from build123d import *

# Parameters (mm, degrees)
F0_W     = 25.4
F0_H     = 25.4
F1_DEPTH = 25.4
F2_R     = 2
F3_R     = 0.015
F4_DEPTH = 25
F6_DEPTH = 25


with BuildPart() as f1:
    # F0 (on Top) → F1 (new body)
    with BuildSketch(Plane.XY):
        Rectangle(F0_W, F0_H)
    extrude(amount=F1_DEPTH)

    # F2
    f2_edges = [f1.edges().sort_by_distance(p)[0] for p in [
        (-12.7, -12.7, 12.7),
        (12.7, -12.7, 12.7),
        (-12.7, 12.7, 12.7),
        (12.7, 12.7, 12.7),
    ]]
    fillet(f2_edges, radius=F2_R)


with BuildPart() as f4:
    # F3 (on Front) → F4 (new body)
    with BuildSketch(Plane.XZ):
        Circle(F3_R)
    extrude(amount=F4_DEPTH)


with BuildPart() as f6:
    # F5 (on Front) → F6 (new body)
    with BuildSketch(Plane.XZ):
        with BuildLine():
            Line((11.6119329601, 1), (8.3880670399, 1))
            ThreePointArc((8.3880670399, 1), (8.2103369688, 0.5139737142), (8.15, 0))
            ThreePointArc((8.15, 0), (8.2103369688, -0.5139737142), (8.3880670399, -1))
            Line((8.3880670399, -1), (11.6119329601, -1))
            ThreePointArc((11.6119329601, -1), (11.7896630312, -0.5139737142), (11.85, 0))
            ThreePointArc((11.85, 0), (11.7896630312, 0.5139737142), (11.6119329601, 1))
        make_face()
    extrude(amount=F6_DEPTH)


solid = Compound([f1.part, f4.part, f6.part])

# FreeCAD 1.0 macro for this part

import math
import FreeCAD as App
import Part
import Sketcher
from FreeCAD import Vector
Q = App.Units.Quantity


def edges_at(feature, points):
    """Names of the edges that pass closest to the given points."""
    edges = feature.Shape.Edges
    near = lambda p: min(range(len(edges)), key=lambda i: edges[i].distToShape(Part.Vertex(*p))[0])
    return sorted({f"Edge{near(p) + 1}" for p in points})


def add_polygon(sketch, points):
    """Adds a closed chain of lines whose ends are joined by coincident constraints."""
    first, n = sketch.GeometryCount, len(points)
    for a, b in zip(points, points[1:] + points[:1]):
        sketch.addGeometry(Part.LineSegment(App.Vector(*a, 0), App.Vector(*b, 0)), False)
    for i in range(n):
        sketch.addConstraint(Sketcher.Constraint("Coincident", first + i, 2, first + (i + 1) % n, 1))

doc = App.newDocument("Part")
body = doc.addObject("PartDesign::Body", "Body")

# Sketch on XY plane
sketch1 = body.newObject("Sketcher::SketchObject", "Sketch")
sketch1.AttachmentSupport = (doc.getObject("XY_Plane"), [""])
sketch1.MapMode = "FlatFace"
add_polygon(sketch1, [(-13, 13), (-13, -13), (13, -13), (13, 13)])  # lines 0-3
sketch1.addConstraint(Sketcher.Constraint("Vertical", 0))
sketch1.addConstraint(Sketcher.Constraint("Horizontal", 1))
sketch1.addConstraint(Sketcher.Constraint("Vertical", 2))
sketch1.addConstraint(Sketcher.Constraint("Horizontal", 3))
sketch1.addConstraint(Sketcher.Constraint("Symmetric", 0, 2, 2, 2, -1, 1))
sketch1.addConstraint(Sketcher.Constraint("Equal", 3, 0))
sketch1.addConstraint(Sketcher.Constraint("DistanceX", 1, 1, 1, 2, Q("25.4 mm")))
pad1 = body.newObject("PartDesign::Pad", "Pad")
pad1.Profile = sketch1
pad1.Length = 25.4
doc.recompute()

fillet = body.newObject("PartDesign::Fillet", "Fillet")
fillet.Base = (pad1, edges_at(pad1, [
    (-12.7, -12.7, 12.7),
    (12.7, -12.7, 12.7),
    (-12.7, 12.7, 12.7),
    (12.7, 12.7, 12.7),
]))
fillet.Radius = 2
body2 = doc.addObject("PartDesign::Body", "Body001")

# Sketch on XZ plane
sketch2 = body2.newObject("Sketcher::SketchObject", "Sketch001")
sketch2.AttachmentSupport = (doc.getObject("XZ_Plane001"), [""])
sketch2.MapMode = "FlatFace"
sketch2.addGeometry(Part.Circle(Vector(0, 0, 0), Vector(0, 0, 1), 0.015), False)
sketch2.addConstraint(Sketcher.Constraint("Coincident", 0, 3, -1, 1))
sketch2.addConstraint(Sketcher.Constraint("Diameter", 0, Q("0.03 mm")))
pad2 = body2.newObject("PartDesign::Pad", "Pad001")
pad2.Profile = sketch2
pad2.Length = 25
body3 = doc.addObject("PartDesign::Body", "Body002")

# Sketch on XZ plane
sketch3 = body3.newObject("Sketcher::SketchObject", "Sketch002")
sketch3.AttachmentSupport = (doc.getObject("XZ_Plane002"), [""])
sketch3.MapMode = "FlatFace"
sketch3.addGeometry(Part.LineSegment(Vector(11.6, 1, 0), Vector(8.4, 1, 0)), False)
sketch3.addGeometry(Part.ArcOfCircle(Part.Circle(Vector(10.4, 0, 0), Vector(0, 0, 1), 2.2), math.radians(153), math.radians(180)), False)
sketch3.addGeometry(Part.ArcOfCircle(Part.Circle(Vector(10.4, 0, 0), Vector(0, 0, 1), 2.2), math.radians(180), math.radians(207)), False)
sketch3.addGeometry(Part.LineSegment(Vector(8.4, -1, 0), Vector(11.6, -1, 0)), False)
sketch3.addGeometry(Part.ArcOfCircle(Part.Circle(Vector(9.6, 0, 0), Vector(0, 0, 1), 2.2), math.radians(-27), math.radians(0)), False)
sketch3.addGeometry(Part.ArcOfCircle(Part.Circle(Vector(9.6, 0, 0), Vector(0, 0, 1), 2.2), math.radians(0), math.radians(27)), False)
sketch3.addConstraint(Sketcher.Constraint("Coincident", 0, 2, 1, 1))
sketch3.addConstraint(Sketcher.Constraint("Tangent", 1, 2, 2, 1))
sketch3.addConstraint(Sketcher.Constraint("Coincident", 2, 2, 3, 1))
sketch3.addConstraint(Sketcher.Constraint("Coincident", 3, 2, 4, 1))
sketch3.addConstraint(Sketcher.Constraint("Tangent", 4, 2, 5, 1))
sketch3.addConstraint(Sketcher.Constraint("Coincident", 5, 2, 0, 1))
sketch3.addConstraint(Sketcher.Constraint("Horizontal", 0))
sketch3.addConstraint(Sketcher.Constraint("Horizontal", 3))
sketch3.addConstraint(Sketcher.Constraint("Equal", 1, 2))
sketch3.addConstraint(Sketcher.Constraint("Equal", 2, 4))
sketch3.addConstraint(Sketcher.Constraint("Equal", 4, 5))
sketch3.addConstraint(Sketcher.Constraint("Symmetric", 0, 2, 2, 2, -1))
sketch3.addConstraint(Sketcher.Constraint("PointOnObject", 4, 3, -1))
sketch3.addConstraint(Sketcher.Constraint("PointOnObject", 1, 2, -1))
sketch3.addConstraint(Sketcher.Constraint("PointOnObject", 4, 2, -1))
sketch3.addConstraint(Sketcher.Constraint("DistanceY", -1, 1, 0, 2, Q("1 mm")))
sketch3.addConstraint(Sketcher.Constraint("DistanceX", -1, 1, 1, 2, Q("8.15 mm")))
sketch3.addConstraint(Sketcher.Constraint("DistanceX", -1, 1, 4, 2, Q("11.85 mm")))
sketch3.addConstraint(Sketcher.Constraint("Radius", 1, Q("2.219282 mm")))
pad3 = body3.newObject("PartDesign::Pad", "Pad002")
pad3.Profile = sketch3
pad3.Length = 25

doc.recompute()
